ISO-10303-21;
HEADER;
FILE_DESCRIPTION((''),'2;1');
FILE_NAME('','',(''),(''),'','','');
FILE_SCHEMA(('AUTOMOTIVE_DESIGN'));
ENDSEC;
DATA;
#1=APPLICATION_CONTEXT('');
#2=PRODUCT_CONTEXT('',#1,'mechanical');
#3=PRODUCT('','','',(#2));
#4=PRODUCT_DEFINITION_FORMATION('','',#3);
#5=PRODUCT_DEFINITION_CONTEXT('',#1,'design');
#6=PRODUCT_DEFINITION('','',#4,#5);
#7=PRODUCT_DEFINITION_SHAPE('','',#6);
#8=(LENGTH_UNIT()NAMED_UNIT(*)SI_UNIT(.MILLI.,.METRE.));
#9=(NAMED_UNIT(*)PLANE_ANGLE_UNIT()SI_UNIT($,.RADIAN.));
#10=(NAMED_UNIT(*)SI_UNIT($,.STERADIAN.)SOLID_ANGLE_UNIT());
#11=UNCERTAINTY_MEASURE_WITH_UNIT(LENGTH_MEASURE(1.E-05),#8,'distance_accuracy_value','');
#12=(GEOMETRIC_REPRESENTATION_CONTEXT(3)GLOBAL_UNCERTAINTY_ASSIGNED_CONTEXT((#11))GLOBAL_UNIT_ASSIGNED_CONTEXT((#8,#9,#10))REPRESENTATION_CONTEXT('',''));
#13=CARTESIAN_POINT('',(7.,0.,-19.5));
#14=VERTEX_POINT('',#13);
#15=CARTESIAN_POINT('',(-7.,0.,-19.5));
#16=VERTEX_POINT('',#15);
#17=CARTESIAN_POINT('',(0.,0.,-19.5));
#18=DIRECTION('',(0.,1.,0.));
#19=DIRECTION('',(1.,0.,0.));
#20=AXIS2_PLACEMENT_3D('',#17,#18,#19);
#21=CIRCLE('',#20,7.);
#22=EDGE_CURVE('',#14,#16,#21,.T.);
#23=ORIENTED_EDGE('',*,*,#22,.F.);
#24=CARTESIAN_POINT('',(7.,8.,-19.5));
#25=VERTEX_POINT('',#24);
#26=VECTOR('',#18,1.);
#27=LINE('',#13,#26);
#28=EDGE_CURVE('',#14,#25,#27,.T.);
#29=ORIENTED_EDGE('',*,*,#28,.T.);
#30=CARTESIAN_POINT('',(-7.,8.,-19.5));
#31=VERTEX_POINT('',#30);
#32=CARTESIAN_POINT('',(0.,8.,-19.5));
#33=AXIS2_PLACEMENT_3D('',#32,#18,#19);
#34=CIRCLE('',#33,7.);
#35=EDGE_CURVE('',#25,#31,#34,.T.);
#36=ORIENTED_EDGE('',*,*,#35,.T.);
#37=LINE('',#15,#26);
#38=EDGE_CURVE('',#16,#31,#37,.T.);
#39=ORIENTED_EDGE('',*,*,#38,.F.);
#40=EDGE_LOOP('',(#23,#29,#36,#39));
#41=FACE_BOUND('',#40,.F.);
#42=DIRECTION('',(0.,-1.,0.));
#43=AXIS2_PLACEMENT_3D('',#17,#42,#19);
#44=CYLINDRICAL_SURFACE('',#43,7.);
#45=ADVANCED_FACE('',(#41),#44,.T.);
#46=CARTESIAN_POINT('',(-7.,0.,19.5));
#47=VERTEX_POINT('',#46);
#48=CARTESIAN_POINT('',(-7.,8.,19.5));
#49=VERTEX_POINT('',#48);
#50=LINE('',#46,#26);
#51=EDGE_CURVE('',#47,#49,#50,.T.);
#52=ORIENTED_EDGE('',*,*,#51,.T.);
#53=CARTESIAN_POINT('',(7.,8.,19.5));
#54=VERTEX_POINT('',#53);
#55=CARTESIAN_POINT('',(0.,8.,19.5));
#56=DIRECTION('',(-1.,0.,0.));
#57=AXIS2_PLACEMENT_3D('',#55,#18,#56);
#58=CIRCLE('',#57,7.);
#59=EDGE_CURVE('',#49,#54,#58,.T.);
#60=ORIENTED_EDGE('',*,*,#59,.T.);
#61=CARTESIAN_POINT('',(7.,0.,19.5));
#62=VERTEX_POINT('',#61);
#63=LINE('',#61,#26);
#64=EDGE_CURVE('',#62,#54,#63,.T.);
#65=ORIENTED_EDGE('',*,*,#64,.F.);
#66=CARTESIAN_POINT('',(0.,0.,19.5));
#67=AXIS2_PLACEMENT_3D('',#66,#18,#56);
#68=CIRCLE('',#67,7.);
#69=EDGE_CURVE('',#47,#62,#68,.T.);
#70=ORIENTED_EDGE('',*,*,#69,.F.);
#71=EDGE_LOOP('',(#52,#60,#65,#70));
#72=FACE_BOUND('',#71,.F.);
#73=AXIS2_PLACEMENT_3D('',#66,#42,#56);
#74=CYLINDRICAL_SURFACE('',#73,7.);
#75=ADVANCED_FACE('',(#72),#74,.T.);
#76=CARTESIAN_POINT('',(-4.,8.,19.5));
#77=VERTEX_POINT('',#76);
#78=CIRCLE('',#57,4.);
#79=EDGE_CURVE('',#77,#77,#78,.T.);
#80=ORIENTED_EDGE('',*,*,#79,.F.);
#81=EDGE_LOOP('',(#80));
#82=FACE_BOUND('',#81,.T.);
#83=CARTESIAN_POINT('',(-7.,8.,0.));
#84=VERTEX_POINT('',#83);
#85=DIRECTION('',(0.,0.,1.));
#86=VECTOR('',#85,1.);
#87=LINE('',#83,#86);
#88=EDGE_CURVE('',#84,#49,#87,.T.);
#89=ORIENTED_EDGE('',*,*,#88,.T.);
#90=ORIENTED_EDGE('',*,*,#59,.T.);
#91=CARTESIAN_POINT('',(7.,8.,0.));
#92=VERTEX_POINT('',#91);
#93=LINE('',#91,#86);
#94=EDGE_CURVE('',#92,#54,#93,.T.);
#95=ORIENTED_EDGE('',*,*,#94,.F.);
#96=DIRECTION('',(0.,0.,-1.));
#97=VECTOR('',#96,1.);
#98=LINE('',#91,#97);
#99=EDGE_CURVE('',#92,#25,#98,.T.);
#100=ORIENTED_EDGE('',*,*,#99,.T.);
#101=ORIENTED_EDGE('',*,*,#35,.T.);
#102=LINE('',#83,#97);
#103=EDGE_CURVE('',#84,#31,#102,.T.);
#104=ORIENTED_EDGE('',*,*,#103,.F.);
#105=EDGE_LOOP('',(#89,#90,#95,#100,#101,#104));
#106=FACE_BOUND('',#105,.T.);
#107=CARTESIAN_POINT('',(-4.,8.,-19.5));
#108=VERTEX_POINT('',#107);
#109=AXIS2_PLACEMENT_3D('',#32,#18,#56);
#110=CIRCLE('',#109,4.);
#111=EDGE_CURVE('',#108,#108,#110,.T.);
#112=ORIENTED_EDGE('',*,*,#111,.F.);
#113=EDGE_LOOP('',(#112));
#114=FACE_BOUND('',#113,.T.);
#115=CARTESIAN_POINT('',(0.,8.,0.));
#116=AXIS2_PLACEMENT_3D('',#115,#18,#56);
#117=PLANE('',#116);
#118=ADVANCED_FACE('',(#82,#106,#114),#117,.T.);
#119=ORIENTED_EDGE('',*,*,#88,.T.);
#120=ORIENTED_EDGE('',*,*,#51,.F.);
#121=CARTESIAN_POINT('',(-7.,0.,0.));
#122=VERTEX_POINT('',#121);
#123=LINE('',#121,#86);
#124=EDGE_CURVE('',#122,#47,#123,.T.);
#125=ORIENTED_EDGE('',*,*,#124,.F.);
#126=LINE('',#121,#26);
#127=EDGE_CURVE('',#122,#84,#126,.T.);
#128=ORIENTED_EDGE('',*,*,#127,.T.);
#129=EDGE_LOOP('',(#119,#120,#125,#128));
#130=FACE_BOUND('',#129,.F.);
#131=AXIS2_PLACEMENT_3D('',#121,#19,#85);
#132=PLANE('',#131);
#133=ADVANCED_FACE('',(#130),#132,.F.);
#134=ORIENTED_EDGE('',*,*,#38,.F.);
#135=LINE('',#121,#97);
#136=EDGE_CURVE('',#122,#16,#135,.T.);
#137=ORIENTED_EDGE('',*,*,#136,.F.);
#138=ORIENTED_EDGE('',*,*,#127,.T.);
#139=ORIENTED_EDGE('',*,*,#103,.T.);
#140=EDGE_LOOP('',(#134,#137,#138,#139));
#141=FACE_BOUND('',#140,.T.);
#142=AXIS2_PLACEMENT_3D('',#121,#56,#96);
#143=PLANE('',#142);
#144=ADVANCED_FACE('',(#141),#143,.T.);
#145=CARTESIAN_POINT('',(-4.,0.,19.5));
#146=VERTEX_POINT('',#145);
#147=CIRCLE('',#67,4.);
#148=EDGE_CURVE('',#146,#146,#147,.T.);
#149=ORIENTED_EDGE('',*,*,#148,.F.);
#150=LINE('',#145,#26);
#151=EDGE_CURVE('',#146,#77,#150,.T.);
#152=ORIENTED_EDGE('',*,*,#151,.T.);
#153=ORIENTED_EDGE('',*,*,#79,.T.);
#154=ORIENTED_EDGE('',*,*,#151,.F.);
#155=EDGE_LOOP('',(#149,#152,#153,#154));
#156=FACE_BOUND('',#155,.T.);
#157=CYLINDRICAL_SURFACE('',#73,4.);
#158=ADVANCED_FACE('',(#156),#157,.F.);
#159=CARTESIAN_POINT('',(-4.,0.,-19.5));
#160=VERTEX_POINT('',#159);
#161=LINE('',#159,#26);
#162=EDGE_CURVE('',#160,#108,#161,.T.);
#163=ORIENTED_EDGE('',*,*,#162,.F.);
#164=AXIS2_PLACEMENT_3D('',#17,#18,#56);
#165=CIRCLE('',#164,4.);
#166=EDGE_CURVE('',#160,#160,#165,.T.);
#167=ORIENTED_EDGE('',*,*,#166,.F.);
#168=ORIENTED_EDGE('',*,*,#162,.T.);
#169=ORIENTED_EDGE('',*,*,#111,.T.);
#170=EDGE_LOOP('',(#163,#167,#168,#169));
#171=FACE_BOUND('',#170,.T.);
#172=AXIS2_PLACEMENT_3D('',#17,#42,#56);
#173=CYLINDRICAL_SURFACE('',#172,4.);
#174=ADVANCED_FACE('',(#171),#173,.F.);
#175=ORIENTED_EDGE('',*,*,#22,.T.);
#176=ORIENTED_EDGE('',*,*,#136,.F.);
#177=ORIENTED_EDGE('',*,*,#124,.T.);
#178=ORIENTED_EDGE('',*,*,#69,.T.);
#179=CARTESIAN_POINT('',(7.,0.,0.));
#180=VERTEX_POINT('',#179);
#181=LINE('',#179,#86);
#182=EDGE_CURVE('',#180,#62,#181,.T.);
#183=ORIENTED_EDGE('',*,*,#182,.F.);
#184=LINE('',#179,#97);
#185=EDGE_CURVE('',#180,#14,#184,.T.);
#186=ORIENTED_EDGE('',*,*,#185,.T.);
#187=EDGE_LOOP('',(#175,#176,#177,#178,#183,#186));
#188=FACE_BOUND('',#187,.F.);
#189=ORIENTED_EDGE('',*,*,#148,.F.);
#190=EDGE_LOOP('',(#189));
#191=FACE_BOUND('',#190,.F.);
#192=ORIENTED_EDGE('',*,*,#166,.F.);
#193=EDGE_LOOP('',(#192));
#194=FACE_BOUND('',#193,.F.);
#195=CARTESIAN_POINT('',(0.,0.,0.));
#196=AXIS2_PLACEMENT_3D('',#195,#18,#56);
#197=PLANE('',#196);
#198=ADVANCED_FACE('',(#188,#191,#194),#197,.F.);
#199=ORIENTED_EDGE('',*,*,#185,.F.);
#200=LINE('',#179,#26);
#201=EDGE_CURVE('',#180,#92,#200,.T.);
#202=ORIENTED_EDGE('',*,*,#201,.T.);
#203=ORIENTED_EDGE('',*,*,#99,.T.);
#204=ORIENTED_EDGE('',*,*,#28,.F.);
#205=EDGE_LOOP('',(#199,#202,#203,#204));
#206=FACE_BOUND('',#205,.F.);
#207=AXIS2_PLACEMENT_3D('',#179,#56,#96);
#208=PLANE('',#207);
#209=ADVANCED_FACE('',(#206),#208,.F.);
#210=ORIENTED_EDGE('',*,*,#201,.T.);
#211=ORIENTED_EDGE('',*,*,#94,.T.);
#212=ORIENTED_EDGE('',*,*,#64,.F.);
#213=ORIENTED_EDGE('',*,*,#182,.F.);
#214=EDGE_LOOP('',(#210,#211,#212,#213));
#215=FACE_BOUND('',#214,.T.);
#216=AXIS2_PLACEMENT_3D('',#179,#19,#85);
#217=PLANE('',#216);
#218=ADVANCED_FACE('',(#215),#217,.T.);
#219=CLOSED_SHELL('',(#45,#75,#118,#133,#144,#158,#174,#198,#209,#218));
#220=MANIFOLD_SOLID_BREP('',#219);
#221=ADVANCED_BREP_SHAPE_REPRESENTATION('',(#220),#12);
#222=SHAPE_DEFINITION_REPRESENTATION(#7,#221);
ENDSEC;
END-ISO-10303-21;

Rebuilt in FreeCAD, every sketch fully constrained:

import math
import FreeCAD as App
import Part
import Sketcher

doc = App.newDocument("Part")
body = doc.addObject("PartDesign::Body", "Body")

sketch1 = body.newObject("Sketcher::SketchObject", "Sketch")
sketch1.AttachmentSupport = (doc.getObject("XZ_Plane"), [""])
sketch1.MapMode = "FlatFace"
sketch1.addGeometry([
    Part.LineSegment(App.Vector(-7, -19.5, 0), App.Vector(-7, 19.5, 0)),
    Part.ArcOfCircle(Part.Circle(App.Vector(0, 19.5, 0), App.Vector(0, 0, 1), 7), math.radians(0), math.radians(180)),
    Part.LineSegment(App.Vector(7, 19.5, 0), App.Vector(7, -19.5, 0)),
    Part.ArcOfCircle(Part.Circle(App.Vector(0, -19.5, 0), App.Vector(0, 0, 1), 7), math.radians(180), math.radians(360)),
    Part.Circle(App.Vector(0, -19.5, 0), App.Vector(0, 0, 1), 4),
    Part.Circle(App.Vector(0, 19.5, 0), App.Vector(0, 0, 1), 4),
], False)
sketch1.addConstraint([
    Sketcher.Constraint("Tangent", 0, 2, 1, 2),
    Sketcher.Constraint("Tangent", 1, 1, 2, 1),
    Sketcher.Constraint("Tangent", 2, 2, 3, 2),
    Sketcher.Constraint("Tangent", 3, 1, 0, 1),
    Sketcher.Constraint("Vertical", 0),
    Sketcher.Constraint("Vertical", 2),
    Sketcher.Constraint("Coincident", 4, 3, 3, 3),
    Sketcher.Constraint("Coincident", 5, 3, 1, 3),
    Sketcher.Constraint("Equal", 4, 5),
    Sketcher.Constraint("Symmetric", 1, 3, 3, 3, -1, 1),
    Sketcher.Constraint("Diameter", 4, 8.0),
    Sketcher.Constraint("Radius", 1, 7.0),
    Sketcher.Constraint("DistanceY", 0, 1, 0, 2, 39.0),
])
pad1 = body.newObject("PartDesign::Pad", "Pad")
pad1.Profile = sketch1
pad1.Length = 8
pad1.Reversed = True

doc.recompute()
